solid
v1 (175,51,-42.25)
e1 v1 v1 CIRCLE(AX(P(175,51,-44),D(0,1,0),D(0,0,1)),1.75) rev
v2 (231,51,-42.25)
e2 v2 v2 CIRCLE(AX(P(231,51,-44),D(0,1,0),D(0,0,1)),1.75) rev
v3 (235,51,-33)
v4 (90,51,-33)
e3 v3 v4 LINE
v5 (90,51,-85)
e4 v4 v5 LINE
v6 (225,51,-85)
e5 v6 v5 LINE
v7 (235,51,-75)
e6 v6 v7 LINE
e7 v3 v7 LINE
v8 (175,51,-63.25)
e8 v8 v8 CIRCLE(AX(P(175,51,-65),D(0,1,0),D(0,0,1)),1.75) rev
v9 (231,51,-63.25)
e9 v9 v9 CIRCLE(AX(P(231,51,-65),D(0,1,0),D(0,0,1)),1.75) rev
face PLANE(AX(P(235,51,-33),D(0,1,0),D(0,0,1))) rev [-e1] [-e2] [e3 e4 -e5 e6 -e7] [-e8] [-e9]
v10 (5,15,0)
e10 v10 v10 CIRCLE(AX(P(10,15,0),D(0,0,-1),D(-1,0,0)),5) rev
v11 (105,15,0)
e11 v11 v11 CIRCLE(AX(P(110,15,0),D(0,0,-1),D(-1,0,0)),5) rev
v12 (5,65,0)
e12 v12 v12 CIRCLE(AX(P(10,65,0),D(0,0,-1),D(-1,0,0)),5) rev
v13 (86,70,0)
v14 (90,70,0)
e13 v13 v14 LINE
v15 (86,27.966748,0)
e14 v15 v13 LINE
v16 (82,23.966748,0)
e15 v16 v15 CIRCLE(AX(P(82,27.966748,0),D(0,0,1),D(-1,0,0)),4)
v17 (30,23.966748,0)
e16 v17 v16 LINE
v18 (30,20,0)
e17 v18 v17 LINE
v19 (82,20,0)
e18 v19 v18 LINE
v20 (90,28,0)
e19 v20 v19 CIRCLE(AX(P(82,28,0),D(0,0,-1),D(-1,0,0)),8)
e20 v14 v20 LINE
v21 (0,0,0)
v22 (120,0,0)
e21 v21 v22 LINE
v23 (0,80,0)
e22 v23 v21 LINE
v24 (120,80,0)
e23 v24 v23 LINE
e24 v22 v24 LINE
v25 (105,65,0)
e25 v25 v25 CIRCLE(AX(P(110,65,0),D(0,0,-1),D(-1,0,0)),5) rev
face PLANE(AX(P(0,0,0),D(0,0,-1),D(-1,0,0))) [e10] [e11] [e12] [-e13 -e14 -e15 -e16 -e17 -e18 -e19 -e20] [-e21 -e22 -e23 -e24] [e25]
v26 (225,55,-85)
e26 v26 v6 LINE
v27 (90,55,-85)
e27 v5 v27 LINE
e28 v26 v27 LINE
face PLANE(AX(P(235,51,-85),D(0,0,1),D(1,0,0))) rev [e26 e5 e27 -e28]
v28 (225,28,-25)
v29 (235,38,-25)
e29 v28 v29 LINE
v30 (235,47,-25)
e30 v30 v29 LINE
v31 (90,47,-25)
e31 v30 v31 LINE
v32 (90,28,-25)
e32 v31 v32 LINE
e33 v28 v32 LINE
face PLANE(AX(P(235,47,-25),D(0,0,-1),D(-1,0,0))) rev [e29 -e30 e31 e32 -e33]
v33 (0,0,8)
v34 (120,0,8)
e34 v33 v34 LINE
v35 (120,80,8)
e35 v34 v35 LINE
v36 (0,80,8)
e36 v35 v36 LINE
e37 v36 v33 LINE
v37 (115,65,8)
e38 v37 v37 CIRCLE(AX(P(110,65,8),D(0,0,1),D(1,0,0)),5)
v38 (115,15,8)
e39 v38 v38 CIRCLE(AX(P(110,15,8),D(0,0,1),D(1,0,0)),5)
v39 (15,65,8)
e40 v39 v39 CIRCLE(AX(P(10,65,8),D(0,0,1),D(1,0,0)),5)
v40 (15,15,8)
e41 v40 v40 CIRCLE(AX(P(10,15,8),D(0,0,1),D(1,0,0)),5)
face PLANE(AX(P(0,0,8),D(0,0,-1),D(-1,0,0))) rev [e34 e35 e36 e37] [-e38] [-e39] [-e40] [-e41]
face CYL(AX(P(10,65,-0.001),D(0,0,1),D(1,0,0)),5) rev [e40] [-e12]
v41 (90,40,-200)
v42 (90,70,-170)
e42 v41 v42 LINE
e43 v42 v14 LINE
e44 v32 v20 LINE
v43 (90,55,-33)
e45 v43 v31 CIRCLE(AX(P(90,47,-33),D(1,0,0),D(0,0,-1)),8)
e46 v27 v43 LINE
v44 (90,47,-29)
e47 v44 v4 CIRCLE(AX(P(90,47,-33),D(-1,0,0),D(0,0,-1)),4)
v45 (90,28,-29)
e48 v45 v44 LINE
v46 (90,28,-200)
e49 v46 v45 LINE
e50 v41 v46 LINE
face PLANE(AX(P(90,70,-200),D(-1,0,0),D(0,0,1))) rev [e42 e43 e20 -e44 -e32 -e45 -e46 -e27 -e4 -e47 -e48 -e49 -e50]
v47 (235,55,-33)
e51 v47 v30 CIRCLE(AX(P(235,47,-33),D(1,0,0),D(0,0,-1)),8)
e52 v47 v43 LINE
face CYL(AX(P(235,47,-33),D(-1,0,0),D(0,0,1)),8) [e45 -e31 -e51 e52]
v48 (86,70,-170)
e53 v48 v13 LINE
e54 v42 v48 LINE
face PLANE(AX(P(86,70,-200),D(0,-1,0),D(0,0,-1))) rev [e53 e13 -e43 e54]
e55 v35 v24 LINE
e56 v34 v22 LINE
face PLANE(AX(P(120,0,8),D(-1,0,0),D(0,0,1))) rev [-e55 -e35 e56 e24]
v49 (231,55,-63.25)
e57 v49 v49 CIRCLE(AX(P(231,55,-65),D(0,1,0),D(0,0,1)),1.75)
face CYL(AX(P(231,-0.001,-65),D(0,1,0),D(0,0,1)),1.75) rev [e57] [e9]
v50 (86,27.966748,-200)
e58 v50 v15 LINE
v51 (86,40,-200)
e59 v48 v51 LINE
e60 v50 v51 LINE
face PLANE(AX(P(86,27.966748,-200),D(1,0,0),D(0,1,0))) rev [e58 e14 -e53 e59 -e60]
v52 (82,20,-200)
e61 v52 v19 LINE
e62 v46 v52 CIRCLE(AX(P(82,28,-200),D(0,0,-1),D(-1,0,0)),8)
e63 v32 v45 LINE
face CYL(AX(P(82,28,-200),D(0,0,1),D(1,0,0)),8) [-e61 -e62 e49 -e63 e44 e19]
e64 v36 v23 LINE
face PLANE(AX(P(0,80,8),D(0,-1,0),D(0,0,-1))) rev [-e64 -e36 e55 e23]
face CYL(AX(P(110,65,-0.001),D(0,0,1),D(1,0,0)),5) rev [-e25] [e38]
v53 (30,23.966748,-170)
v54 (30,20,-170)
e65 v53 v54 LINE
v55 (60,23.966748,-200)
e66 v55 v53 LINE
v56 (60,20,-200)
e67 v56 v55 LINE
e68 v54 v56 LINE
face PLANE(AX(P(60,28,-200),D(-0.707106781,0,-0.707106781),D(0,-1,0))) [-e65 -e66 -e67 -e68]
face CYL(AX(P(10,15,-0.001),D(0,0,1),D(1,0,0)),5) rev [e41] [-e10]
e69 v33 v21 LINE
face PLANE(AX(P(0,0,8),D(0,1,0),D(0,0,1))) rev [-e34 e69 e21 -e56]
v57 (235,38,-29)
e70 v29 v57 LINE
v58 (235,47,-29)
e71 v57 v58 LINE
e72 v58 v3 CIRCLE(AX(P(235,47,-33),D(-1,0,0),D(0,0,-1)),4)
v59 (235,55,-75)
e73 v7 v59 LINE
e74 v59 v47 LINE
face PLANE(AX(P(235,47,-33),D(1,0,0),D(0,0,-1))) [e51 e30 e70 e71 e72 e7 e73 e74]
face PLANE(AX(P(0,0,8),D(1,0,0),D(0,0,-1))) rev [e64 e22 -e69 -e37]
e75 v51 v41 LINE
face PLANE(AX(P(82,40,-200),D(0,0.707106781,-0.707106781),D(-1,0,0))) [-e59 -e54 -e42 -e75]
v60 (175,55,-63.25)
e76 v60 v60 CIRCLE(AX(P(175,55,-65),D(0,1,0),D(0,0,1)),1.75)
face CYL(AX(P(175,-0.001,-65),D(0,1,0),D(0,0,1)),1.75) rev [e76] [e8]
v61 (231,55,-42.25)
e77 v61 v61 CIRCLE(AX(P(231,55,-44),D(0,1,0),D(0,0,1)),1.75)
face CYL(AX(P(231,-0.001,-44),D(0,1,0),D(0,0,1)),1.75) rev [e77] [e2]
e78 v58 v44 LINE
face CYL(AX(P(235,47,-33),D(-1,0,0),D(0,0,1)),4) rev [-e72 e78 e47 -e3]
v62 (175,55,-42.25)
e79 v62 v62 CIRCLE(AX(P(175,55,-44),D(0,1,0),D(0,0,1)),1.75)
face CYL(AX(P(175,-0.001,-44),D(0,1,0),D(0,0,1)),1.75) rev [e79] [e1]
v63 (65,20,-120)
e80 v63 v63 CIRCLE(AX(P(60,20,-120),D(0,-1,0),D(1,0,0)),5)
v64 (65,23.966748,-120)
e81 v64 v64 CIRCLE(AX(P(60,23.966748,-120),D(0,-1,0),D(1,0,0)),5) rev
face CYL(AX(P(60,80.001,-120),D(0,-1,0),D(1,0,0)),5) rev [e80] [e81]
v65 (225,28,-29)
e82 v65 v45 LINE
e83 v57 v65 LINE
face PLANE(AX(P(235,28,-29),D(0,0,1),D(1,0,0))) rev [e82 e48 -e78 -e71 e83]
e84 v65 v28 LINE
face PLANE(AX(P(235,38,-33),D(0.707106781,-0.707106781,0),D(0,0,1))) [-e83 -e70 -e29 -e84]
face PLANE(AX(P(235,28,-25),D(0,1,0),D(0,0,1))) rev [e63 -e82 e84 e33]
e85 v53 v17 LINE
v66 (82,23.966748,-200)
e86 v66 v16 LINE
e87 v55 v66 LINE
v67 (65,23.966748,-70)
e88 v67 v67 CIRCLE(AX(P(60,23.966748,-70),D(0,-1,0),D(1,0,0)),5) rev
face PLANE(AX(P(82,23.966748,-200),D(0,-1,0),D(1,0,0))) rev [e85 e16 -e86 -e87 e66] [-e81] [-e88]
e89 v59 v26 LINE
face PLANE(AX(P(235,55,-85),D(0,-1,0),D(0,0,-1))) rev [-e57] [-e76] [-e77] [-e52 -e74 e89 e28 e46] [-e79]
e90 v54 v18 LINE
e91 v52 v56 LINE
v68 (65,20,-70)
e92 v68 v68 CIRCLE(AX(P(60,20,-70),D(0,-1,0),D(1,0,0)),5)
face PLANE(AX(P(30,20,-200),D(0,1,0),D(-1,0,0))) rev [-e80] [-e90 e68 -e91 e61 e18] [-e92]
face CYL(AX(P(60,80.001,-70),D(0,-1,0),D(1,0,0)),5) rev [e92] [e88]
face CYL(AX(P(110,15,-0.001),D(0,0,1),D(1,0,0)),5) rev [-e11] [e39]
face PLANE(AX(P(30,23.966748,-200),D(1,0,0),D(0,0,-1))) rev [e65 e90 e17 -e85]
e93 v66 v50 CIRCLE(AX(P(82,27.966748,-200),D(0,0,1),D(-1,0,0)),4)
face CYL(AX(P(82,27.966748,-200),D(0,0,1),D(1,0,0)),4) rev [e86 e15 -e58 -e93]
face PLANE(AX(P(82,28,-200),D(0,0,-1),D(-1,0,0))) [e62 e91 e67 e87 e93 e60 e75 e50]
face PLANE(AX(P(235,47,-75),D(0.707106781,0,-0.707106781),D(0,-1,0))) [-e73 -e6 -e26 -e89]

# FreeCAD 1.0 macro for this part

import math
import FreeCAD as App
import Part
import Sketcher
Q = App.Units.Quantity


def edges_at(feature, points):
    """Names of the edges that pass closest to the given points."""
    edges = feature.Shape.Edges
    near = lambda p: min(range(len(edges)), key=lambda i: edges[i].distToShape(Part.Vertex(*p))[0])
    return sorted({f"Edge{near(p) + 1}" for p in points})

doc = App.newDocument("Part")
params = doc.addObject("Spreadsheet::Sheet", "Params")
for row, (alias, value) in enumerate([
    ("sketch1_width", "120 mm"),
    ("sketch1_height", "80 mm"),
    ("pad1_length", "8 mm"),
    ("sketch2_diameter", "10 mm"),
    ("sketch3_diameter", "10 mm"),
    ("sketch4_diameter", "10 mm"),
    ("sketch5_diameter", "10 mm"),
    ("sketch6_radius", "4 mm"),
    ("sketch6_radius2", "8 mm"),
    ("sketch6_width", "52 mm"),
    ("sketch6_height", "42 mm"),
    ("pad2_length", "200 mm"),
    ("chamfer_size", "30 mm"),
    ("sketch7_diameter", "10 mm"),
    ("sketch8_diameter", "10 mm"),
    ("sketch9_radius", "4 mm"),
    ("sketch9_radius2", "8 mm"),
    ("sketch9_width", "19 mm"),
    ("sketch9_height", "52 mm"),
    ("pad3_length", "145 mm"),
    ("chamfer2_size", "10 mm"),
    ("sketch10_diameter", "3.5 mm"),
    ("sketch11_diameter", "3.5 mm"),
    ("sketch12_diameter", "3.5 mm"),
    ("sketch13_diameter", "3.5 mm"),
], start=1):
    params.set(f"A{row}", alias)
    params.set(f"B{row}", "=" + value)
    params.setAlias(f"B{row}", alias)

body = doc.addObject("PartDesign::Body", "Body")

sketch1 = body.newObject("Sketcher::SketchObject", "Sketch")
sketch1.AttachmentSupport = (doc.getObject("XY_Plane"), [""])
sketch1.MapMode = "FlatFace"
sketch1.addGeometry([
    Part.LineSegment(App.Vector(0, 80, 0), App.Vector(0, 0, 0)),
    Part.LineSegment(App.Vector(0, 0, 0), App.Vector(120, 0, 0)),
    Part.LineSegment(App.Vector(120, 0, 0), App.Vector(120, 80, 0)),
    Part.LineSegment(App.Vector(120, 80, 0), App.Vector(0, 80, 0)),
], False)
sketch1.addConstraint([
    Sketcher.Constraint("Coincident", 0, 2, 1, 1),
    Sketcher.Constraint("Coincident", 1, 2, 2, 1),
    Sketcher.Constraint("Coincident", 2, 2, 3, 1),
    Sketcher.Constraint("Coincident", 3, 2, 0, 1),
    Sketcher.Constraint("Vertical", 0),
    Sketcher.Constraint("Horizontal", 1),
    Sketcher.Constraint("Vertical", 2),
    Sketcher.Constraint("Horizontal", 3),
    Sketcher.Constraint("Coincident", 0, 2, -1, 1),
    Sketcher.Constraint("DistanceX", 1, 1, 1, 2, Q("120 mm")),
    Sketcher.Constraint("DistanceY", 0, 2, 0, 1, Q("80 mm")),
])
sketch1.setExpression("Constraints[9]", "Params.sketch1_width")
sketch1.setExpression("Constraints[10]", "Params.sketch1_height")
pad1 = body.newObject("PartDesign::Pad", "Pad")
pad1.Profile = sketch1
pad1.setExpression("Length", "Params.pad1_length")

sketch2 = body.newObject("Sketcher::SketchObject", "Sketch001")
sketch2.AttachmentSupport = (doc.getObject("XY_Plane"), [""])
sketch2.MapMode = "FlatFace"
sketch2.AttachmentOffset = App.Placement(App.Vector(0, 0, 8), App.Rotation())
sketch2.addGeometry(Part.Circle(App.Vector(10, 65, 0), App.Vector(0, 0, 1), 5), False)
sketch2.addConstraint([
    Sketcher.Constraint("Diameter", 0, Q("10 mm")),
    Sketcher.Constraint("DistanceX", -1, 1, 0, 3, Q("10 mm")),
    Sketcher.Constraint("DistanceY", -1, 1, 0, 3, Q("65 mm")),
])
sketch2.setExpression("Constraints[0]", "Params.sketch2_diameter")
pocket1 = body.newObject("PartDesign::Pocket", "Pocket")
pocket1.Profile = sketch2
pocket1.Type = "UpToFirst"

sketch3 = body.newObject("Sketcher::SketchObject", "Sketch002")
sketch3.AttachmentSupport = (doc.getObject("XY_Plane"), [""])
sketch3.MapMode = "FlatFace"
sketch3.AttachmentOffset = App.Placement(App.Vector(0, 0, 8), App.Rotation())
sketch3.addGeometry(Part.Circle(App.Vector(10, 15, 0), App.Vector(0, 0, 1), 5), False)
sketch3.addConstraint([
    Sketcher.Constraint("Diameter", 0, Q("10 mm")),
    Sketcher.Constraint("DistanceX", -1, 1, 0, 3, Q("10 mm")),
    Sketcher.Constraint("DistanceY", -1, 1, 0, 3, Q("15 mm")),
])
sketch3.setExpression("Constraints[0]", "Params.sketch3_diameter")
pocket2 = body.newObject("PartDesign::Pocket", "Pocket001")
pocket2.Profile = sketch3
pocket2.Type = "UpToFirst"

sketch4 = body.newObject("Sketcher::SketchObject", "Sketch003")
sketch4.AttachmentSupport = (doc.getObject("XY_Plane"), [""])
sketch4.MapMode = "FlatFace"
sketch4.AttachmentOffset = App.Placement(App.Vector(0, 0, 8), App.Rotation())
sketch4.addGeometry(Part.Circle(App.Vector(110, 15, 0), App.Vector(0, 0, 1), 5), False)
sketch4.addConstraint([
    Sketcher.Constraint("Diameter", 0, Q("10 mm")),
    Sketcher.Constraint("DistanceX", -1, 1, 0, 3, Q("110 mm")),
    Sketcher.Constraint("DistanceY", -1, 1, 0, 3, Q("15 mm")),
])
sketch4.setExpression("Constraints[0]", "Params.sketch4_diameter")
pocket3 = body.newObject("PartDesign::Pocket", "Pocket002")
pocket3.Profile = sketch4
pocket3.Type = "UpToFirst"

sketch5 = body.newObject("Sketcher::SketchObject", "Sketch004")
sketch5.AttachmentSupport = (doc.getObject("XY_Plane"), [""])
sketch5.MapMode = "FlatFace"
sketch5.AttachmentOffset = App.Placement(App.Vector(0, 0, 8), App.Rotation())
sketch5.addGeometry(Part.Circle(App.Vector(110, 65, 0), App.Vector(0, 0, 1), 5), False)
sketch5.addConstraint([
    Sketcher.Constraint("Diameter", 0, Q("10 mm")),
    Sketcher.Constraint("DistanceX", -1, 1, 0, 3, Q("110 mm")),
    Sketcher.Constraint("DistanceY", -1, 1, 0, 3, Q("65 mm")),
])
sketch5.setExpression("Constraints[0]", "Params.sketch5_diameter")
pocket4 = body.newObject("PartDesign::Pocket", "Pocket003")
pocket4.Profile = sketch5
pocket4.Type = "UpToFirst"

sketch6 = body.newObject("Sketcher::SketchObject", "Sketch005")
sketch6.AttachmentSupport = (doc.getObject("XY_Plane"), [""])
sketch6.MapMode = "FlatFace"
sketch6.addGeometry([
    Part.LineSegment(App.Vector(82, 20, 0), App.Vector(30, 20, 0)),
    Part.LineSegment(App.Vector(30, 20, 0), App.Vector(30, 23.966748, 0)),
    Part.LineSegment(App.Vector(30, 23.966748, 0), App.Vector(82, 23.966748, 0)),
    Part.ArcOfCircle(Part.Circle(App.Vector(82, 27.966748, 0), App.Vector(0, 0, 1), 4), math.radians(-90), math.radians(0)),
    Part.LineSegment(App.Vector(86, 27.966748, 0), App.Vector(86, 70, 0)),
    Part.LineSegment(App.Vector(86, 70, 0), App.Vector(90, 70, 0)),
    Part.LineSegment(App.Vector(90, 70, 0), App.Vector(90, 28, 0)),
    Part.ArcOfCircle(Part.Circle(App.Vector(82, 28, 0), App.Vector(0, 0, 1), 8), math.radians(-90), math.radians(0)),
], False)
sketch6.addConstraint([
    Sketcher.Constraint("Coincident", 0, 2, 1, 1),
    Sketcher.Constraint("Coincident", 1, 2, 2, 1),
    Sketcher.Constraint("Tangent", 2, 2, 3, 1),
    Sketcher.Constraint("Tangent", 3, 2, 4, 1),
    Sketcher.Constraint("Coincident", 4, 2, 5, 1),
    Sketcher.Constraint("Coincident", 5, 2, 6, 1),
    Sketcher.Constraint("Tangent", 6, 2, 7, 2),
    Sketcher.Constraint("Tangent", 7, 1, 0, 1),
    Sketcher.Constraint("Horizontal", 0),
    Sketcher.Constraint("Vertical", 1),
    Sketcher.Constraint("Horizontal", 2),
    Sketcher.Constraint("Vertical", 4),
    Sketcher.Constraint("Horizontal", 5),
    Sketcher.Constraint("Vertical", 6),
    Sketcher.Constraint("Vertical", 3, 3, 7, 3),
    Sketcher.Constraint("Radius", 3, Q("4 mm")),
    Sketcher.Constraint("Radius", 7, Q("8 mm")),
    Sketcher.Constraint("DistanceX", 0, 2, 0, 1, Q("52 mm")),
    Sketcher.Constraint("DistanceY", 6, 2, 6, 1, Q("42 mm")),
    Sketcher.Constraint("DistanceX", -1, 1, 3, 3, Q("82 mm")),
    Sketcher.Constraint("DistanceY", -1, 1, 7, 3, Q("28 mm")),
    Sketcher.Constraint("DistanceY", 1, 1, 1, 2, Q("3.966748 mm")),
])
sketch6.setExpression("Constraints[15]", "Params.sketch6_radius")
sketch6.setExpression("Constraints[16]", "Params.sketch6_radius2")
sketch6.setExpression("Constraints[17]", "Params.sketch6_width")
sketch6.setExpression("Constraints[18]", "Params.sketch6_height")
pad2 = body.newObject("PartDesign::Pad", "Pad001")
pad2.Profile = sketch6
pad2.setExpression("Length", "Params.pad2_length")
pad2.Reversed = True
doc.recompute()

chamfer = body.newObject("PartDesign::Chamfer", "Chamfer")
chamfer.Base = (pad2, edges_at(pad2, [(30, 21.983, -200), (88, 70, -200)]))
chamfer.setExpression("Size", "Params.chamfer_size")

sketch7 = body.newObject("Sketcher::SketchObject", "Sketch006")
sketch7.AttachmentSupport = (doc.getObject("XZ_Plane"), [""])
sketch7.MapMode = "FlatFace"
sketch7.AttachmentOffset = App.Placement(App.Vector(0, 0, -20), App.Rotation())
sketch7.addGeometry(Part.Circle(App.Vector(60, -70, 0), App.Vector(0, 0, 1), 5), False)
sketch7.addConstraint([
    Sketcher.Constraint("Diameter", 0, Q("10 mm")),
    Sketcher.Constraint("DistanceX", -1, 1, 0, 3, Q("60 mm")),
    Sketcher.Constraint("DistanceY", 0, 3, -1, 1, Q("70 mm")),
])
sketch7.setExpression("Constraints[0]", "Params.sketch7_diameter")
pocket5 = body.newObject("PartDesign::Pocket", "Pocket004")
pocket5.Profile = sketch7
pocket5.Type = "UpToFirst"

sketch8 = body.newObject("Sketcher::SketchObject", "Sketch007")
sketch8.AttachmentSupport = (doc.getObject("XZ_Plane"), [""])
sketch8.MapMode = "FlatFace"
sketch8.AttachmentOffset = App.Placement(App.Vector(0, 0, -20), App.Rotation())
sketch8.addGeometry(Part.Circle(App.Vector(60, -120, 0), App.Vector(0, 0, 1), 5), False)
sketch8.addConstraint([
    Sketcher.Constraint("Diameter", 0, Q("10 mm")),
    Sketcher.Constraint("DistanceX", -1, 1, 0, 3, Q("60 mm")),
    Sketcher.Constraint("DistanceY", 0, 3, -1, 1, Q("120 mm")),
])
sketch8.setExpression("Constraints[0]", "Params.sketch8_diameter")
pocket6 = body.newObject("PartDesign::Pocket", "Pocket005")
pocket6.Profile = sketch8
pocket6.Type = "UpToFirst"

sketch9 = body.newObject("Sketcher::SketchObject", "Sketch008")
sketch9.AttachmentSupport = (doc.getObject("YZ_Plane"), [""])
sketch9.MapMode = "FlatFace"
sketch9.AttachmentOffset = App.Placement(App.Vector(0, 0, 90), App.Rotation())
sketch9.addGeometry([
    Part.LineSegment(App.Vector(47, -25, 0), App.Vector(28, -25, 0)),
    Part.LineSegment(App.Vector(28, -25, 0), App.Vector(28, -29, 0)),
    Part.LineSegment(App.Vector(28, -29, 0), App.Vector(47, -29, 0)),
    Part.ArcOfCircle(Part.Circle(App.Vector(47, -33, 0), App.Vector(0, 0, 1), 4), math.radians(0), math.radians(90)),
    Part.LineSegment(App.Vector(51, -33, 0), App.Vector(51, -85, 0)),
    Part.LineSegment(App.Vector(51, -85, 0), App.Vector(55, -85, 0)),
    Part.LineSegment(App.Vector(55, -85, 0), App.Vector(55, -33, 0)),
    Part.ArcOfCircle(Part.Circle(App.Vector(47, -33, 0), App.Vector(0, 0, 1), 8), math.radians(0), math.radians(90)),
], False)
sketch9.addConstraint([
    Sketcher.Constraint("Coincident", 0, 2, 1, 1),
    Sketcher.Constraint("Coincident", 1, 2, 2, 1),
    Sketcher.Constraint("Tangent", 2, 2, 3, 2),
    Sketcher.Constraint("Tangent", 3, 1, 4, 1),
    Sketcher.Constraint("Coincident", 4, 2, 5, 1),
    Sketcher.Constraint("Coincident", 5, 2, 6, 1),
    Sketcher.Constraint("Tangent", 6, 2, 7, 1),
    Sketcher.Constraint("Tangent", 7, 2, 0, 1),
    Sketcher.Constraint("Horizontal", 0),
    Sketcher.Constraint("Vertical", 1),
    Sketcher.Constraint("Horizontal", 2),
    Sketcher.Constraint("Vertical", 4),
    Sketcher.Constraint("Horizontal", 5),
    Sketcher.Constraint("Vertical", 6),
    Sketcher.Constraint("Coincident", 7, 3, 3, 3),
    Sketcher.Constraint("Radius", 3, Q("4 mm")),
    Sketcher.Constraint("Radius", 7, Q("8 mm")),
    Sketcher.Constraint("DistanceX", 0, 2, 0, 1, Q("19 mm")),
    Sketcher.Constraint("DistanceY", 4, 2, 4, 1, Q("52 mm")),
    Sketcher.Constraint("DistanceX", -1, 1, 3, 3, Q("47 mm")),
    Sketcher.Constraint("DistanceY", 3, 3, -1, 1, Q("33 mm")),
])
sketch9.setExpression("Constraints[15]", "Params.sketch9_radius")
sketch9.setExpression("Constraints[16]", "Params.sketch9_radius2")
sketch9.setExpression("Constraints[17]", "Params.sketch9_width")
sketch9.setExpression("Constraints[18]", "Params.sketch9_height")
pad3 = body.newObject("PartDesign::Pad", "Pad002")
pad3.Profile = sketch9
pad3.setExpression("Length", "Params.pad3_length")
doc.recompute()

chamfer2 = body.newObject("PartDesign::Chamfer", "Chamfer001")
chamfer2.Base = (pad3, edges_at(pad3, [(235, 53, -85), (235, 28, -27)]))
chamfer2.setExpression("Size", "Params.chamfer2_size")

sketch10 = body.newObject("Sketcher::SketchObject", "Sketch009")
sketch10.AttachmentSupport = (doc.getObject("XZ_Plane"), [""])
sketch10.MapMode = "FlatFace"
sketch10.AttachmentOffset = App.Placement(App.Vector(0, 0, -55), App.Rotation())
sketch10.addGeometry(Part.Circle(App.Vector(231, -65, 0), App.Vector(0, 0, 1), 1.75), False)
sketch10.addConstraint([
    Sketcher.Constraint("Diameter", 0, Q("3.5 mm")),
    Sketcher.Constraint("DistanceX", -1, 1, 0, 3, Q("231 mm")),
    Sketcher.Constraint("DistanceY", 0, 3, -1, 1, Q("65 mm")),
])
sketch10.setExpression("Constraints[0]", "Params.sketch10_diameter")
pocket7 = body.newObject("PartDesign::Pocket", "Pocket006")
pocket7.Profile = sketch10
pocket7.Type = "UpToFirst"
pocket7.Reversed = True

sketch11 = body.newObject("Sketcher::SketchObject", "Sketch010")
sketch11.AttachmentSupport = (doc.getObject("XZ_Plane"), [""])
sketch11.MapMode = "FlatFace"
sketch11.AttachmentOffset = App.Placement(App.Vector(0, 0, -55), App.Rotation())
sketch11.addGeometry(Part.Circle(App.Vector(231, -44, 0), App.Vector(0, 0, 1), 1.75), False)
sketch11.addConstraint([
    Sketcher.Constraint("Diameter", 0, Q("3.5 mm")),
    Sketcher.Constraint("DistanceX", -1, 1, 0, 3, Q("231 mm")),
    Sketcher.Constraint("DistanceY", 0, 3, -1, 1, Q("44 mm")),
])
sketch11.setExpression("Constraints[0]", "Params.sketch11_diameter")
pocket8 = body.newObject("PartDesign::Pocket", "Pocket007")
pocket8.Profile = sketch11
pocket8.Type = "UpToFirst"
pocket8.Reversed = True

sketch12 = body.newObject("Sketcher::SketchObject", "Sketch011")
sketch12.AttachmentSupport = (doc.getObject("XZ_Plane"), [""])
sketch12.MapMode = "FlatFace"
sketch12.AttachmentOffset = App.Placement(App.Vector(0, 0, -55), App.Rotation())
sketch12.addGeometry(Part.Circle(App.Vector(175, -44, 0), App.Vector(0, 0, 1), 1.75), False)
sketch12.addConstraint([
    Sketcher.Constraint("Diameter", 0, Q("3.5 mm")),
    Sketcher.Constraint("DistanceX", -1, 1, 0, 3, Q("175 mm")),
    Sketcher.Constraint("DistanceY", 0, 3, -1, 1, Q("44 mm")),
])
sketch12.setExpression("Constraints[0]", "Params.sketch12_diameter")
pocket9 = body.newObject("PartDesign::Pocket", "Pocket008")
pocket9.Profile = sketch12
pocket9.Type = "UpToFirst"
pocket9.Reversed = True

sketch13 = body.newObject("Sketcher::SketchObject", "Sketch012")
sketch13.AttachmentSupport = (doc.getObject("XZ_Plane"), [""])
sketch13.MapMode = "FlatFace"
sketch13.AttachmentOffset = App.Placement(App.Vector(0, 0, -55), App.Rotation())
sketch13.addGeometry(Part.Circle(App.Vector(175, -65, 0), App.Vector(0, 0, 1), 1.75), False)
sketch13.addConstraint([
    Sketcher.Constraint("Diameter", 0, Q("3.5 mm")),
    Sketcher.Constraint("DistanceX", -1, 1, 0, 3, Q("175 mm")),
    Sketcher.Constraint("DistanceY", 0, 3, -1, 1, Q("65 mm")),
])
sketch13.setExpression("Constraints[0]", "Params.sketch13_diameter")
pocket10 = body.newObject("PartDesign::Pocket", "Pocket009")
pocket10.Profile = sketch13
pocket10.Type = "UpToFirst"
pocket10.Reversed = True

doc.recompute()
